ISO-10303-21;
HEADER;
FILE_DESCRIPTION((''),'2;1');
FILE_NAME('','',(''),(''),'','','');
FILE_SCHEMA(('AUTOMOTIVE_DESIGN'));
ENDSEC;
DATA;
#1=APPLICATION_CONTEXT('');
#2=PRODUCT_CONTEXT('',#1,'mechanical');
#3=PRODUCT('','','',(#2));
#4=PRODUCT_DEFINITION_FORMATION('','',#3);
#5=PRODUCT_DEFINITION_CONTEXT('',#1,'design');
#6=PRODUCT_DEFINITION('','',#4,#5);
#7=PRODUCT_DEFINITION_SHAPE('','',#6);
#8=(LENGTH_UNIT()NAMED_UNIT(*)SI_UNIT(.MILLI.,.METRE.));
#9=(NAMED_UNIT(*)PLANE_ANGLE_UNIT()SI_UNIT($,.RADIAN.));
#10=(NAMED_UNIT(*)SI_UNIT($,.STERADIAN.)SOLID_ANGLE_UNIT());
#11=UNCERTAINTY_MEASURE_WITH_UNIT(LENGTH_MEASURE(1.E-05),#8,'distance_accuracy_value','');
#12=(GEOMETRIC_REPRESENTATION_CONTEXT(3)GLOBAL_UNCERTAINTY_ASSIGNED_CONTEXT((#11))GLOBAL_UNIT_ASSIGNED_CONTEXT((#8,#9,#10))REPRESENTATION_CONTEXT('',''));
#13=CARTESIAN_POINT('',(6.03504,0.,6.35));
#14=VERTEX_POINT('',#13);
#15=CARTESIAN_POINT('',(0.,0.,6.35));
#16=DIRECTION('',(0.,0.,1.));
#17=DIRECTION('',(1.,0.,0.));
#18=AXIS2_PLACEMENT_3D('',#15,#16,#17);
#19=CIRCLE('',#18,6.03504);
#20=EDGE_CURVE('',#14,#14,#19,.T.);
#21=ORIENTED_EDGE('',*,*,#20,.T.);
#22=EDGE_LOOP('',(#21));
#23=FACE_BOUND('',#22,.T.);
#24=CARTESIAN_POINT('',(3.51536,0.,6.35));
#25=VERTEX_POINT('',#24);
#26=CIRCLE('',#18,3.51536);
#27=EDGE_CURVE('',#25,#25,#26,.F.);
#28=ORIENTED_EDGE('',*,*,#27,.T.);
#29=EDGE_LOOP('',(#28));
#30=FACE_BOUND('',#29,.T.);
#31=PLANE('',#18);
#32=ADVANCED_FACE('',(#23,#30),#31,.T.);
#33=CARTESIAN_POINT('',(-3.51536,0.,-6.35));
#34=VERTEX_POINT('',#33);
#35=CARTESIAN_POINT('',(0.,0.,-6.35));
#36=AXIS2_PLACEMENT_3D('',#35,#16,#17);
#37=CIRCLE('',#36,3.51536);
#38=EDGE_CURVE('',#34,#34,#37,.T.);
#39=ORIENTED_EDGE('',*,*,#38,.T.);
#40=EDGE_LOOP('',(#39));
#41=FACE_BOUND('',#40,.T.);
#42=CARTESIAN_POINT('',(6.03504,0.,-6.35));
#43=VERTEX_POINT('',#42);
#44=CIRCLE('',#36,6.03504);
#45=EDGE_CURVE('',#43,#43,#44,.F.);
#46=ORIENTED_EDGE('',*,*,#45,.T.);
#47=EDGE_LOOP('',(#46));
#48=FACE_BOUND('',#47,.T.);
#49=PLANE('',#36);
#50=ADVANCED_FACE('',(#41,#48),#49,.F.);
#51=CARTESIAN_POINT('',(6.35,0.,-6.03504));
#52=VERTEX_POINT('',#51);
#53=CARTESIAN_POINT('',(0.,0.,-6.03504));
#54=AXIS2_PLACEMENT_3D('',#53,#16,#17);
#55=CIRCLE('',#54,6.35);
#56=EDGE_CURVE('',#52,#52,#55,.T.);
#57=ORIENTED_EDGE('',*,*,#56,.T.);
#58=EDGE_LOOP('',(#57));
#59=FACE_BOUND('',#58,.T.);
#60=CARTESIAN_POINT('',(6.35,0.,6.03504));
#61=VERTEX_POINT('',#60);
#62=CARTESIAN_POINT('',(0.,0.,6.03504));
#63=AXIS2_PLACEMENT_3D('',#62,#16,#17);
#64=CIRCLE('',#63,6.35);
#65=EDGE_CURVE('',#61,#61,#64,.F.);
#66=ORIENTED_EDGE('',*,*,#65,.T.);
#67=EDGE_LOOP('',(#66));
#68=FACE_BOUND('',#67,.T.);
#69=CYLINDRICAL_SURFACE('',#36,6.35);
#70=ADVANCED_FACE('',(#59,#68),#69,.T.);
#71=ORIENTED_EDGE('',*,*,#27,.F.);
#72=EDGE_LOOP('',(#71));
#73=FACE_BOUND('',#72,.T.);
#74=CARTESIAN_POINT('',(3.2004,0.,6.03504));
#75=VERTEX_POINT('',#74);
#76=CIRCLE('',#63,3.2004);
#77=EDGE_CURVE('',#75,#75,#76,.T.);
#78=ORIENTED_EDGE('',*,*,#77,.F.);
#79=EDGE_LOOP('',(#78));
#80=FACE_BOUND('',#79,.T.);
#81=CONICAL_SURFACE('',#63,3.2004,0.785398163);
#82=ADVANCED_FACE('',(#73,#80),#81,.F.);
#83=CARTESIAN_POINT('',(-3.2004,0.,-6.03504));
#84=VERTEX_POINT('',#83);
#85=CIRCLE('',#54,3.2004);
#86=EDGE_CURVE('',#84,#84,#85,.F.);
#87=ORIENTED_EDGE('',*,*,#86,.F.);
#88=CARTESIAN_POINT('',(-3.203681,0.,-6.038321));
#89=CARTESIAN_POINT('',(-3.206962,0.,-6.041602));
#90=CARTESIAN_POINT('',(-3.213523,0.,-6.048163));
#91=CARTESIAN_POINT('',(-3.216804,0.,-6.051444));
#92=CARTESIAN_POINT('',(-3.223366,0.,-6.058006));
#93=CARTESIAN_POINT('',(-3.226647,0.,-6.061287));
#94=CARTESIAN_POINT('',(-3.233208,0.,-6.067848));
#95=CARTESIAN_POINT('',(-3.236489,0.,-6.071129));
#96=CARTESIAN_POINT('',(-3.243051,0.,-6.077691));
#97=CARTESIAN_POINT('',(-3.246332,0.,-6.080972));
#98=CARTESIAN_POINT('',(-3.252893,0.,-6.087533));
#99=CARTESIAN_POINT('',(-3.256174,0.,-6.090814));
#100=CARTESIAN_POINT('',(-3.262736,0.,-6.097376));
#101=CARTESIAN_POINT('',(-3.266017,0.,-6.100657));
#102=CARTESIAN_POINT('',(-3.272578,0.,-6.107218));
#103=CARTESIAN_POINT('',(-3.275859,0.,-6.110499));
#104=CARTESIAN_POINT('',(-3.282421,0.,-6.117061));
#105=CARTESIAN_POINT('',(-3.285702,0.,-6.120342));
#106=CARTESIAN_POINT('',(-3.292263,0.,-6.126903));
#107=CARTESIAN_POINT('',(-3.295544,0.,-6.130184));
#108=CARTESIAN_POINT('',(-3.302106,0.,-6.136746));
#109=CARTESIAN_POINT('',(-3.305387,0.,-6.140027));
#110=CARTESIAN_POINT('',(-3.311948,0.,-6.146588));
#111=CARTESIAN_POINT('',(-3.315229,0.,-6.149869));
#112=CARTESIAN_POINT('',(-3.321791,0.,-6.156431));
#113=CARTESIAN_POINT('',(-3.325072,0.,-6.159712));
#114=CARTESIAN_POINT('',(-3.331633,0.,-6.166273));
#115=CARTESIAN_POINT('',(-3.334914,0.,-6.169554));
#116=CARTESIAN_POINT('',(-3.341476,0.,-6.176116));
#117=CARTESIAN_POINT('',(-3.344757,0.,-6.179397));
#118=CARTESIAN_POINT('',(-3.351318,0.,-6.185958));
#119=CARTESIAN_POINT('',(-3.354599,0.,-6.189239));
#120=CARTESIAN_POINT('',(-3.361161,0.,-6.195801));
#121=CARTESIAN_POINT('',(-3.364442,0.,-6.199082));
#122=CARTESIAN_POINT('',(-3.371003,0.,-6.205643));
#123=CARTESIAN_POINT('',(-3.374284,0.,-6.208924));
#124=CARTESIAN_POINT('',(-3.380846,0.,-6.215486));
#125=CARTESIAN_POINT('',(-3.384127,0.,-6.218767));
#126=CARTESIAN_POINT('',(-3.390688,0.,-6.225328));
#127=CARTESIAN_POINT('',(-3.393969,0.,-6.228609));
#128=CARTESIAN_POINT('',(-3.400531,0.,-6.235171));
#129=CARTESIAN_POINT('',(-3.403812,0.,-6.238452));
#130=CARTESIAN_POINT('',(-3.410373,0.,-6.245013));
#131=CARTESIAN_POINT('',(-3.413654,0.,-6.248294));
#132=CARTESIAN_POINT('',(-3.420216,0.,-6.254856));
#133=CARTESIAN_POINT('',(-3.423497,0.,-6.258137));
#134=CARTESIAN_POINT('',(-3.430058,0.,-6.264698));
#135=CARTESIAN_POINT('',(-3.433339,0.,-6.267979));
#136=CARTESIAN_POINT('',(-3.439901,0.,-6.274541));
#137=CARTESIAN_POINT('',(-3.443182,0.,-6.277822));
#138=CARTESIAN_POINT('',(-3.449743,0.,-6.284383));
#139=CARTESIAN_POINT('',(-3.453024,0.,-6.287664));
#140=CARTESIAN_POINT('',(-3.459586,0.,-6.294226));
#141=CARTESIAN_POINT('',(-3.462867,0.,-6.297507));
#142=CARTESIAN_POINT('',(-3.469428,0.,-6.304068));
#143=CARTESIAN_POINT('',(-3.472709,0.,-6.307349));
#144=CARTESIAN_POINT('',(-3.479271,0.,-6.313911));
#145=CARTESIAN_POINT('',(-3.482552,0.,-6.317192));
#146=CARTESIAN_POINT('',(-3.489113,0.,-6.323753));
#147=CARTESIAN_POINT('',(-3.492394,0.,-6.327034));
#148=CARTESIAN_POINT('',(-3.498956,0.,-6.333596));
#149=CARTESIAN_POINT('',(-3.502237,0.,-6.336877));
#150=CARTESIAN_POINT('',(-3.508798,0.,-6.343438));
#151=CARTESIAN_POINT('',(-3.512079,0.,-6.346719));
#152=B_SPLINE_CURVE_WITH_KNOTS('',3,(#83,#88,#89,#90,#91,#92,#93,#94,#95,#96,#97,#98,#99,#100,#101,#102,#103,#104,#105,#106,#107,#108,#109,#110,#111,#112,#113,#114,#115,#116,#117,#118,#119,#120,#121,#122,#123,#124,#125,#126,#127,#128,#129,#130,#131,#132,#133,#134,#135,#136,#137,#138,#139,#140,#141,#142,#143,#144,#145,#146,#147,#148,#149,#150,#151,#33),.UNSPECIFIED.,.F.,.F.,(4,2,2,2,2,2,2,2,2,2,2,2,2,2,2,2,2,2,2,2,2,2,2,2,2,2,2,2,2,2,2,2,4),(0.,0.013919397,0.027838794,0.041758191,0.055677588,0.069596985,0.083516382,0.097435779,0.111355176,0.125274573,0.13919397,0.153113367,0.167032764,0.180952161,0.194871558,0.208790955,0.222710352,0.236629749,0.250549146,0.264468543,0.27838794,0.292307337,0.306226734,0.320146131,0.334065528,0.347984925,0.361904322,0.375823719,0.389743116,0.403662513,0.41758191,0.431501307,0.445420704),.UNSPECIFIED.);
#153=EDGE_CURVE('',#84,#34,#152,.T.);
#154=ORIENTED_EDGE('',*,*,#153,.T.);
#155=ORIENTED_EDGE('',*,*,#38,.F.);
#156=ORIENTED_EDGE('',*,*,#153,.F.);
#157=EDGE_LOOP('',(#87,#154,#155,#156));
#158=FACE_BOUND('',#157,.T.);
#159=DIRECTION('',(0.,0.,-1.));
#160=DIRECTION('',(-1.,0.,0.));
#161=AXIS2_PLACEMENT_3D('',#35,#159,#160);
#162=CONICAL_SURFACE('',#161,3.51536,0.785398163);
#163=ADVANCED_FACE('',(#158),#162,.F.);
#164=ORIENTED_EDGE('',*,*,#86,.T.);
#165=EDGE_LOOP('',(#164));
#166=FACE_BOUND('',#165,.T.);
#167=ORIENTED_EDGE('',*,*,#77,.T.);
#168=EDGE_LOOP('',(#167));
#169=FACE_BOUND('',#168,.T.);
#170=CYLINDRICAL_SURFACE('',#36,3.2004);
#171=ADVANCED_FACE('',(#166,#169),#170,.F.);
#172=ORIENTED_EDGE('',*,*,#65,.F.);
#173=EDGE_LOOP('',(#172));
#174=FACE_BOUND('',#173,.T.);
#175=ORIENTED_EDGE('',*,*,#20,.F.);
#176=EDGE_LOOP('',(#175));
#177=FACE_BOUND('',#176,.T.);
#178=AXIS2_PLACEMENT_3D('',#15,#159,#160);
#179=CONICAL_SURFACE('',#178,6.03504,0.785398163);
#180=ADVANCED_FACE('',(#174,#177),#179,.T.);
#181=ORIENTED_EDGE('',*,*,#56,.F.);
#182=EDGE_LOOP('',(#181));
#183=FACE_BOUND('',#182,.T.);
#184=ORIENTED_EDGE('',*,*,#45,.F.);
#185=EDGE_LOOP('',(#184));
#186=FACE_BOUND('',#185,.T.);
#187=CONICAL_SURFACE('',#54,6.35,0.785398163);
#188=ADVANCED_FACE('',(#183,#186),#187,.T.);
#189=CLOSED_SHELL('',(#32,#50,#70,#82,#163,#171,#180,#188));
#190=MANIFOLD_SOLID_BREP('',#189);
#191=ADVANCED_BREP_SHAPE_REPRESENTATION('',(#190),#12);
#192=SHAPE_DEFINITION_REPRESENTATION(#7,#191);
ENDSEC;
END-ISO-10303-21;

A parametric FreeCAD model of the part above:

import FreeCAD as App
import Part
import Sketcher
Q = App.Units.Quantity


def edges_at(feature, points):
    """Names of the edges that pass closest to the given points."""
    edges = feature.Shape.Edges
    near = lambda p: min(range(len(edges)), key=lambda i: edges[i].distToShape(Part.Vertex(*p))[0])
    return sorted({f"Edge{near(p) + 1}" for p in points})

doc = App.newDocument("Part")
body = doc.addObject("PartDesign::Body", "Body")

# Sketch on XY plane
sketch1 = body.newObject("Sketcher::SketchObject", "Sketch")
sketch1.AttachmentSupport = (doc.getObject("XY_Plane"), [""])
sketch1.MapMode = "FlatFace"
sketch1.addGeometry([
    Part.Circle(App.Vector(0, 0, 0), App.Vector(0, 0, 1), 6.3),
    Part.Circle(App.Vector(0, 0, 0), App.Vector(0, 0, 1), 3.2),
], False)
sketch1.addConstraint([
    Sketcher.Constraint("Coincident", 0, 3, -1, 1),
    Sketcher.Constraint("Coincident", 1, 3, -1, 1),
    Sketcher.Constraint("Diameter", 0, Q("0.5 in")),
    Sketcher.Constraint("Diameter", 1, Q("0.252 in")),
])
pad1 = body.newObject("PartDesign::Pad", "Pad")
pad1.Profile = sketch1
pad1.Type = "TwoLengths"
pad1.Length = Q("0.25 in")
pad1.Length2 = Q("0.25 in")
doc.recompute()

chamfer = body.newObject("PartDesign::Chamfer", "Chamfer")
chamfer.Base = (pad1, edges_at(pad1, [
    (-6.35, 0, -6.35),
    (-3.2, 0, -6.35),
    (-6.35, 0, 6.35),
    (-3.2, 0, 6.35),
]))
chamfer.Size = Q("0.0124 in")

doc.recompute()
